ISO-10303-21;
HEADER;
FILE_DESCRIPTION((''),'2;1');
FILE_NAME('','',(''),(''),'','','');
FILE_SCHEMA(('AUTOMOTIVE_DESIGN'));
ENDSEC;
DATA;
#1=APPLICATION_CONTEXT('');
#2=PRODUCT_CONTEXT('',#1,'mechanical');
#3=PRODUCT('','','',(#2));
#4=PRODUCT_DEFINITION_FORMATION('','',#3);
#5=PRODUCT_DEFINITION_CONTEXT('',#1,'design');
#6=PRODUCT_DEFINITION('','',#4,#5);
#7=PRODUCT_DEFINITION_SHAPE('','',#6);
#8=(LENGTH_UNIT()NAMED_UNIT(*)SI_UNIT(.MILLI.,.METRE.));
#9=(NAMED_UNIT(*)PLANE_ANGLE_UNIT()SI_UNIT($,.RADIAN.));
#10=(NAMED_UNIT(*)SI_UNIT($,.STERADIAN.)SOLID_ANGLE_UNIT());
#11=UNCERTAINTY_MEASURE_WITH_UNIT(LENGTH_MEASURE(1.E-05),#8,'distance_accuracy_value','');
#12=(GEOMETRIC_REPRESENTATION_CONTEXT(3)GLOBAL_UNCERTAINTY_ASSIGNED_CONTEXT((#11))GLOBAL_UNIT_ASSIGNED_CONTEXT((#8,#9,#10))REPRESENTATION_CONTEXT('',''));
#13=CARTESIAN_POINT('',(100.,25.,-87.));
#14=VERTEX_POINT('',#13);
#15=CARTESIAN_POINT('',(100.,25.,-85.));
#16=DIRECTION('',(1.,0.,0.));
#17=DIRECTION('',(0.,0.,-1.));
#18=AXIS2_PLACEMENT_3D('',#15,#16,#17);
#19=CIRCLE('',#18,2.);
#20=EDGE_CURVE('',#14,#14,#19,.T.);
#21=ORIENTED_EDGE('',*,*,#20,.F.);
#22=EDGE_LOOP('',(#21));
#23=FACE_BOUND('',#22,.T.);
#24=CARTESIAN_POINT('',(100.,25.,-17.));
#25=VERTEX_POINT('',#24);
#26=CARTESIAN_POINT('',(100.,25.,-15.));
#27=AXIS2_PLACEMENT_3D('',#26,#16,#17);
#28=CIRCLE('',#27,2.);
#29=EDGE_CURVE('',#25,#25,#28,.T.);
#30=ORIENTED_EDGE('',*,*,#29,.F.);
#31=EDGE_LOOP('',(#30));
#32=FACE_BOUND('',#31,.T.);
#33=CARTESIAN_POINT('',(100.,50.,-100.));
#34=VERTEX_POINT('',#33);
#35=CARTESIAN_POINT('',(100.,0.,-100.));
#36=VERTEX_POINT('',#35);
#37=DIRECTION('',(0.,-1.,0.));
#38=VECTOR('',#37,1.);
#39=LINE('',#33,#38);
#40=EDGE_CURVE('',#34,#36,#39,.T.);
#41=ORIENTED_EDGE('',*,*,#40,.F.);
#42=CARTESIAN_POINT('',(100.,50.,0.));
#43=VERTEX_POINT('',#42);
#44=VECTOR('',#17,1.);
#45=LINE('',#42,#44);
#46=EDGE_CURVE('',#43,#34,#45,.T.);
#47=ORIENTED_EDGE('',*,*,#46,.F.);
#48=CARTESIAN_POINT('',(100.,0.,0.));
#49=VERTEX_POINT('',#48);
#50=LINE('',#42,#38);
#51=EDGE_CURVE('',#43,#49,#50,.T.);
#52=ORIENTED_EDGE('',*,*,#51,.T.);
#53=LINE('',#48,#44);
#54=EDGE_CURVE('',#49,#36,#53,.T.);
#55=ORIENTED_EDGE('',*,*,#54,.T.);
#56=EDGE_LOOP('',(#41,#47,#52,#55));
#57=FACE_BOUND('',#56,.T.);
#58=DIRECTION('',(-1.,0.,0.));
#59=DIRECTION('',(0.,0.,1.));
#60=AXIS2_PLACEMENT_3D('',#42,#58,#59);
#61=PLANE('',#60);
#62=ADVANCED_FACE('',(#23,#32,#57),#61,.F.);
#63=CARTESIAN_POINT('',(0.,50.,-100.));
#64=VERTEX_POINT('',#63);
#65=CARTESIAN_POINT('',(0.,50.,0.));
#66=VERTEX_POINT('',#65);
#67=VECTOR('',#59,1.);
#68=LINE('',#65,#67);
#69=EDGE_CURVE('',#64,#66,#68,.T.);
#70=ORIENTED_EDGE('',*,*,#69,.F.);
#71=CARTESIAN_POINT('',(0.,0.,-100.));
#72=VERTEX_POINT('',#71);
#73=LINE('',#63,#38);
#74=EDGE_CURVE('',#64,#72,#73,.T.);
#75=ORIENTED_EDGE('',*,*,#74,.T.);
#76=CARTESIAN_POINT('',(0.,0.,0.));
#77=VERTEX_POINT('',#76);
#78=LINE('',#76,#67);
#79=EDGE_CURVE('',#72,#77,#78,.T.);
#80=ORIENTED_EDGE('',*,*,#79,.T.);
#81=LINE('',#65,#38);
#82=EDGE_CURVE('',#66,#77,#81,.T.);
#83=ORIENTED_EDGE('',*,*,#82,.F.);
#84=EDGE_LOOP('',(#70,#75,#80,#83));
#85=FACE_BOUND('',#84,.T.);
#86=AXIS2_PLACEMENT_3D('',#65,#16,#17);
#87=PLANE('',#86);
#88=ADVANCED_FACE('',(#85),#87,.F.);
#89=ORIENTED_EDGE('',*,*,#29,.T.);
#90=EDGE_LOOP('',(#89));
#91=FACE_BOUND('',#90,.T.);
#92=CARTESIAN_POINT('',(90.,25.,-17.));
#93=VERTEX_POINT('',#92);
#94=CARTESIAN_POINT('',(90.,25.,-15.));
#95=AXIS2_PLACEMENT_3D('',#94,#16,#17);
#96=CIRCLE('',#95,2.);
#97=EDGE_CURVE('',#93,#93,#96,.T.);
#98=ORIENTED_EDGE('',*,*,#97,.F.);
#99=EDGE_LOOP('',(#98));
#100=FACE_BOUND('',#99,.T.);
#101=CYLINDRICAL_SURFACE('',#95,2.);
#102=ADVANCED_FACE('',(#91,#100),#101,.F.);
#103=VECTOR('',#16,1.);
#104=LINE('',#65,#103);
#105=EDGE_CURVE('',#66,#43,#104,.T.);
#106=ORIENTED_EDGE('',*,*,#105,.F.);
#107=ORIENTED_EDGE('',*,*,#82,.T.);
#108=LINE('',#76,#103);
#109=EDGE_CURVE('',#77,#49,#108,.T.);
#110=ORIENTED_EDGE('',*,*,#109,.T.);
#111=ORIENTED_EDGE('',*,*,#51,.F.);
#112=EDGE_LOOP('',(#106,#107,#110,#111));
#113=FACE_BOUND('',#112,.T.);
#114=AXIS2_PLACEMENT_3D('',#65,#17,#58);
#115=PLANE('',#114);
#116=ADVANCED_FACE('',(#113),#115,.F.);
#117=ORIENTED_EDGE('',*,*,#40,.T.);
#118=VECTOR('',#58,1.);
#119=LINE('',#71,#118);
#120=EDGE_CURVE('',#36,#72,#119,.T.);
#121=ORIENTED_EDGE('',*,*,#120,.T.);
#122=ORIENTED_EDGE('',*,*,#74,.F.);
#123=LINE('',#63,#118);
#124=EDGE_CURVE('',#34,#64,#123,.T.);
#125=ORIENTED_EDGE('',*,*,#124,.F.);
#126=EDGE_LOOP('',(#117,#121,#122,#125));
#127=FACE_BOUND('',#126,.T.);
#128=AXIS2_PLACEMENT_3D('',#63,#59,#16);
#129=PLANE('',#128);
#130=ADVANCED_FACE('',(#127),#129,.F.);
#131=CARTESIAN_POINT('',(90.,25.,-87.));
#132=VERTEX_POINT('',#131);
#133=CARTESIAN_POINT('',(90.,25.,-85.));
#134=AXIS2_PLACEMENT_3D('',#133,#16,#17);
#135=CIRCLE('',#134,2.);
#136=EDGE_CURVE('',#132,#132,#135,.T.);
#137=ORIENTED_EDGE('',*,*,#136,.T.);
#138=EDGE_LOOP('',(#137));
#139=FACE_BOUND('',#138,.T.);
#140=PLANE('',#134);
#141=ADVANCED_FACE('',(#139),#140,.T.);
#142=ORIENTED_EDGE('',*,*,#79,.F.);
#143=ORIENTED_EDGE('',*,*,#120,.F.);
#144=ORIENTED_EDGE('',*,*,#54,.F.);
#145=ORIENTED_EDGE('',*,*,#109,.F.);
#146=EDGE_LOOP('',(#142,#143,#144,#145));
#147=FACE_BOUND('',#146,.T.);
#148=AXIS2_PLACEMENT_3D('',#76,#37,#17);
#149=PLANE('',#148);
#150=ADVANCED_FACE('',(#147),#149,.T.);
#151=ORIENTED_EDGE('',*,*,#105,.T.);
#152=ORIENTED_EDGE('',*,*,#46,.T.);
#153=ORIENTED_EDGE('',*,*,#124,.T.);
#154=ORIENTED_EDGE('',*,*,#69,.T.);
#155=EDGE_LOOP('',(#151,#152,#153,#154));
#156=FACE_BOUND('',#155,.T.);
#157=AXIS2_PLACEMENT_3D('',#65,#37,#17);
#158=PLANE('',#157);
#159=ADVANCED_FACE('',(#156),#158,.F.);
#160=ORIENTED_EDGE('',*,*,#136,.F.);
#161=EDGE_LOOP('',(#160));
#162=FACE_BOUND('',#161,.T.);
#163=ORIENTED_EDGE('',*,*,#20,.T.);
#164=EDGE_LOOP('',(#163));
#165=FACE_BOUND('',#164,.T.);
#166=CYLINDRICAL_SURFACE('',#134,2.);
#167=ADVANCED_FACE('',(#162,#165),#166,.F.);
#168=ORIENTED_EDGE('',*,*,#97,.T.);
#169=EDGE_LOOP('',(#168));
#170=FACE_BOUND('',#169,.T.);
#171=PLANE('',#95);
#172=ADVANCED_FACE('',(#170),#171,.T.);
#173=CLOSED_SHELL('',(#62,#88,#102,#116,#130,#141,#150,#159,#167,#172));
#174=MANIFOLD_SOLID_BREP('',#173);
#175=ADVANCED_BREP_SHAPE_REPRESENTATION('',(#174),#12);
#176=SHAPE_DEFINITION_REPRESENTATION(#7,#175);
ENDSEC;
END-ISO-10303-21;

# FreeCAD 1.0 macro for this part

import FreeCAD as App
import Part
import Sketcher

doc = App.newDocument("Part")
body = doc.addObject("PartDesign::Body", "Body")

# Sketch on XZ plane
sketch1 = body.newObject("Sketcher::SketchObject", "Sketch")
sketch1.AttachmentSupport = (doc.getObject("XZ_Plane"), [""])
sketch1.MapMode = "FlatFace"
sketch1.addGeometry([
    Part.LineSegment(App.Vector(0, -100, 0), App.Vector(0, 0, 0)),
    Part.LineSegment(App.Vector(0, 0, 0), App.Vector(100, 0, 0)),
    Part.LineSegment(App.Vector(100, 0, 0), App.Vector(100, -100, 0)),
    Part.LineSegment(App.Vector(100, -100, 0), App.Vector(0, -100, 0)),
], False)
sketch1.addConstraint([
    Sketcher.Constraint("Coincident", 0, 2, 1, 1),
    Sketcher.Constraint("Coincident", 1, 2, 2, 1),
    Sketcher.Constraint("Coincident", 2, 2, 3, 1),
    Sketcher.Constraint("Coincident", 3, 2, 0, 1),
    Sketcher.Constraint("Vertical", 0),
    Sketcher.Constraint("Horizontal", 1),
    Sketcher.Constraint("Vertical", 2),
    Sketcher.Constraint("Horizontal", 3),
    Sketcher.Constraint("Coincident", 0, 2, -1, 1),
    Sketcher.Constraint("Equal", 3, 0),
    Sketcher.Constraint("DistanceX", 1, 1, 1, 2, 100.0),
])
pad1 = body.newObject("PartDesign::Pad", "Pad")
pad1.Profile = sketch1
pad1.Length = 50
pad1.Reversed = True

# Sketch on YZ plane
sketch2 = body.newObject("Sketcher::SketchObject", "Sketch001")
sketch2.AttachmentSupport = (doc.getObject("YZ_Plane"), [""])
sketch2.MapMode = "FlatFace"
sketch2.AttachmentOffset = App.Placement(App.Vector(0, 0, 100), App.Rotation())
sketch2.addGeometry([
    Part.Circle(App.Vector(25, -15, 0), App.Vector(0, 0, 1), 2),
    Part.Circle(App.Vector(25, -85, 0), App.Vector(0, 0, 1), 2),
], False)
sketch2.addConstraint([
    Sketcher.Constraint("Equal", 0, 1),
    Sketcher.Constraint("Vertical", 0, 3, 1, 3),
    Sketcher.Constraint("Diameter", 0, 4.0),
    Sketcher.Constraint("DistanceX", -1, 1, 0, 3, 25.0),
    Sketcher.Constraint("DistanceY", 0, 3, -1, 1, 15.0),
    Sketcher.Constraint("DistanceY", 1, 3, -1, 1, 85.0),
])
pocket1 = body.newObject("PartDesign::Pocket", "Pocket")
pocket1.Profile = sketch2
pocket1.Length = 10

doc.recompute()
